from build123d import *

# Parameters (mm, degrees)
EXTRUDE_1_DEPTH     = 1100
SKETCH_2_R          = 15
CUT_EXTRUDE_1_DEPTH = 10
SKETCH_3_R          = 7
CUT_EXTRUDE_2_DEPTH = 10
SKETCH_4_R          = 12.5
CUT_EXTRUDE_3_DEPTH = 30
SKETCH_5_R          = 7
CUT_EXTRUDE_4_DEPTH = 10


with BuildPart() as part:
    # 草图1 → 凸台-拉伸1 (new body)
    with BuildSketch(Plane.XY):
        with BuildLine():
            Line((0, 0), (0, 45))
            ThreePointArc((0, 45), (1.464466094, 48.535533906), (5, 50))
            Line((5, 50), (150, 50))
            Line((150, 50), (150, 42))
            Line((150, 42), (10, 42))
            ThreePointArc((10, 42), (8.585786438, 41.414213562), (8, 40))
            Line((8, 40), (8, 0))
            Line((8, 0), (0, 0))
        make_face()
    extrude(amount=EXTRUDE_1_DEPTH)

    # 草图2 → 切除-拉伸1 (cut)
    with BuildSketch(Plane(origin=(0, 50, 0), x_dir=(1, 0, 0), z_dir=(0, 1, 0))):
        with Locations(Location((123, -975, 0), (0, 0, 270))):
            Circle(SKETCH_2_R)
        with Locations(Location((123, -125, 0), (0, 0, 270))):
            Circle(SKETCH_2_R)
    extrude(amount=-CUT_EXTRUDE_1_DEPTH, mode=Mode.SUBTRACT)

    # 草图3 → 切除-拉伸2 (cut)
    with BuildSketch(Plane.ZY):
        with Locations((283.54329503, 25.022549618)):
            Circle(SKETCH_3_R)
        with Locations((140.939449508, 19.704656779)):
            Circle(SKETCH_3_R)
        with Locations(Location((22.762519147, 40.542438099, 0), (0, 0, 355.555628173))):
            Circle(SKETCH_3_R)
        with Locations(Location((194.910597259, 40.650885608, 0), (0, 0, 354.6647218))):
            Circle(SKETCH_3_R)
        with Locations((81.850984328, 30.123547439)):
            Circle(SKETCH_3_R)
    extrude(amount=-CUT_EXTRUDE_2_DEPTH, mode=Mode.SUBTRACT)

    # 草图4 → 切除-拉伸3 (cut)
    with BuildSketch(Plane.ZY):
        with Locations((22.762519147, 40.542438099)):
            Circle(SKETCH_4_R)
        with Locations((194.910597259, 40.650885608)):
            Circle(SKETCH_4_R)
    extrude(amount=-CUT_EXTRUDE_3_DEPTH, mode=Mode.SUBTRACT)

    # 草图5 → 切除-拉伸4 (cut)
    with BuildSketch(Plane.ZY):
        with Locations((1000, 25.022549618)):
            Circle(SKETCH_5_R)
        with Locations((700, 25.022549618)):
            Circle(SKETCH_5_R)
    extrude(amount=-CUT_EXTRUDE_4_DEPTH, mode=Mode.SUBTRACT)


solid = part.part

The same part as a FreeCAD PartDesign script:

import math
import FreeCAD as App
import Part
import Sketcher
Q = App.Units.Quantity

doc = App.newDocument("Part")
body = doc.addObject("PartDesign::Body", "Body")

# Sketch on XY plane
sketch1 = body.newObject("Sketcher::SketchObject", "Sketch")
sketch1.AttachmentSupport = (doc.getObject("XY_Plane"), [""])
sketch1.MapMode = "FlatFace"
sketch1.addGeometry([
    Part.LineSegment(App.Vector(0, 45, 0), App.Vector(0, 0, 0)),  # 0
    Part.LineSegment(App.Vector(0, 0, 0), App.Vector(8, 0, 0)),  # 1
    Part.LineSegment(App.Vector(8, 0, 0), App.Vector(8, 40, 0)),  # 2
    Part.ArcOfCircle(Part.Circle(App.Vector(10, 40, 0), App.Vector(0, 0, 1), 2), math.radians(90), math.radians(180)),  # 3
    Part.LineSegment(App.Vector(10, 42, 0), App.Vector(150, 42, 0)),  # 4
    Part.LineSegment(App.Vector(150, 42, 0), App.Vector(150, 50, 0)),  # 5
    Part.LineSegment(App.Vector(150, 50, 0), App.Vector(5, 50, 0)),  # 6
    Part.ArcOfCircle(Part.Circle(App.Vector(5, 45, 0), App.Vector(0, 0, 1), 5), math.radians(90), math.radians(180)),  # 7
], False)
sketch1.addConstraint([
    Sketcher.Constraint("Coincident", 0, 2, 1, 1),
    Sketcher.Constraint("Coincident", 1, 2, 2, 1),
    Sketcher.Constraint("Tangent", 2, 2, 3, 2),
    Sketcher.Constraint("Tangent", 3, 1, 4, 1),
    Sketcher.Constraint("Coincident", 4, 2, 5, 1),
    Sketcher.Constraint("Coincident", 5, 2, 6, 1),
    Sketcher.Constraint("Tangent", 6, 2, 7, 1),
    Sketcher.Constraint("Tangent", 7, 2, 0, 1),
    Sketcher.Constraint("Vertical", 0),
    Sketcher.Constraint("Horizontal", 1),
    Sketcher.Constraint("Vertical", 2),
    Sketcher.Constraint("Horizontal", 4),
    Sketcher.Constraint("Vertical", 5),
    Sketcher.Constraint("Horizontal", 6),
    Sketcher.Constraint("Coincident", 0, 2, -1, 1),
    Sketcher.Constraint("Equal", 1, 5),
    Sketcher.Constraint("Radius", 3, Q("2 mm")),
    Sketcher.Constraint("Radius", 7, Q("5 mm")),
    Sketcher.Constraint("DistanceX", 1, 1, 1, 2, Q("8 mm")),
    Sketcher.Constraint("DistanceX", 4, 1, 4, 2, Q("140 mm")),
    Sketcher.Constraint("DistanceY", 0, 2, 0, 1, Q("45 mm")),
])
pad1 = body.newObject("PartDesign::Pad", "Pad")
pad1.Profile = sketch1
pad1.Length = 1100

# Sketch on XZ plane
sketch2 = body.newObject("Sketcher::SketchObject", "Sketch001")
sketch2.AttachmentSupport = (doc.getObject("XZ_Plane"), [""])
sketch2.MapMode = "FlatFace"
sketch2.AttachmentOffset = App.Placement(App.Vector(0, 0, -50), App.Rotation())
sketch2.addGeometry([
    Part.Circle(App.Vector(123, 975, 0), App.Vector(0, 0, 1), 15),
    Part.Circle(App.Vector(123, 125, 0), App.Vector(0, 0, 1), 15),
], False)
sketch2.addConstraint([
    Sketcher.Constraint("Equal", 0, 1),
    Sketcher.Constraint("Vertical", 0, 3, 1, 3),
    Sketcher.Constraint("Diameter", 0, Q("30 mm")),
    Sketcher.Constraint("DistanceX", -1, 1, 0, 3, Q("123 mm")),
    Sketcher.Constraint("DistanceY", -1, 1, 0, 3, Q("975 mm")),
    Sketcher.Constraint("DistanceY", -1, 1, 1, 3, Q("125 mm")),
])
pocket1 = body.newObject("PartDesign::Pocket", "Pocket")
pocket1.Profile = sketch2
pocket1.Length = 10
pocket1.Reversed = True

# Sketch on YZ plane
sketch3 = body.newObject("Sketcher::SketchObject", "Sketch002")
sketch3.AttachmentSupport = (doc.getObject("YZ_Plane"), [""])
sketch3.MapMode = "FlatFace"
sketch3.addGeometry([
    Part.Circle(App.Vector(25, 284, 0), App.Vector(0, 0, 1), 7),  # 0
    Part.Circle(App.Vector(20, 141, 0), App.Vector(0, 0, 1), 7),  # 1
    Part.Circle(App.Vector(41, 23, 0), App.Vector(0, 0, 1), 7),  # 2
    Part.Circle(App.Vector(41, 195, 0), App.Vector(0, 0, 1), 7),  # 3
    Part.Circle(App.Vector(30, 82, 0), App.Vector(0, 0, 1), 7),  # 4
], False)
sketch3.addConstraint([
    Sketcher.Constraint("Equal", 0, 1),
    Sketcher.Constraint("Equal", 1, 2),
    Sketcher.Constraint("Equal", 2, 3),
    Sketcher.Constraint("Equal", 3, 4),
    Sketcher.Constraint("Diameter", 0, Q("14 mm")),
    Sketcher.Constraint("DistanceX", -1, 1, 0, 3, Q("25.02255 mm")),
    Sketcher.Constraint("DistanceY", -1, 1, 1, 3, Q("140.93945 mm")),
    Sketcher.Constraint("DistanceX", -1, 1, 2, 3, Q("40.542438 mm")),
    Sketcher.Constraint("DistanceY", -1, 1, 2, 3, Q("22.762519 mm")),
    Sketcher.Constraint("DistanceX", 1, 3, 2, 3, Q("20.837781 mm")),
    Sketcher.Constraint("DistanceX", 1, 3, 3, 3, Q("20.946229 mm")),
    Sketcher.Constraint("DistanceY", 2, 3, 3, 3, Q("172.148078 mm")),
    Sketcher.Constraint("DistanceX", 1, 3, 4, 3, Q("10.418891 mm")),
    Sketcher.Constraint("DistanceY", 4, 3, 0, 3, Q("201.692311 mm")),
    Sketcher.Constraint("DistanceY", -1, 1, 0, 3, Q("283.543295 mm")),
])
pocket2 = body.newObject("PartDesign::Pocket", "Pocket001")
pocket2.Profile = sketch3
pocket2.Length = 10
pocket2.Reversed = True

# Sketch on YZ plane
sketch4 = body.newObject("Sketcher::SketchObject", "Sketch003")
sketch4.AttachmentSupport = (doc.getObject("YZ_Plane"), [""])
sketch4.MapMode = "FlatFace"
sketch4.addGeometry([
    Part.Circle(App.Vector(41, 23, 0), App.Vector(0, 0, 1), 12),
    Part.Circle(App.Vector(41, 195, 0), App.Vector(0, 0, 1), 12),
], False)
sketch4.addConstraint([
    Sketcher.Constraint("Equal", 0, 1),
    Sketcher.Constraint("Diameter", 0, Q("25 mm")),
    Sketcher.Constraint("DistanceX", -1, 1, 0, 3, Q("40.542438 mm")),
    Sketcher.Constraint("DistanceY", -1, 1, 0, 3, Q("22.762519 mm")),
    Sketcher.Constraint("DistanceY", 0, 3, 1, 3, Q("172.148078 mm")),
    Sketcher.Constraint("DistanceX", -1, 1, 1, 3, Q("40.650886 mm")),
])
pocket3 = body.newObject("PartDesign::Pocket", "Pocket002")
pocket3.Profile = sketch4
pocket3.Length = 30
pocket3.Reversed = True

# Sketch on YZ plane
sketch5 = body.newObject("Sketcher::SketchObject", "Sketch004")
sketch5.AttachmentSupport = (doc.getObject("YZ_Plane"), [""])
sketch5.MapMode = "FlatFace"
sketch5.addGeometry([
    Part.Circle(App.Vector(25, 1000, 0), App.Vector(0, 0, 1), 7),
    Part.Circle(App.Vector(25, 700, 0), App.Vector(0, 0, 1), 7),
], False)
sketch5.addConstraint([
    Sketcher.Constraint("Equal", 0, 1),
    Sketcher.Constraint("Vertical", 0, 3, 1, 3),
    Sketcher.Constraint("Diameter", 0, Q("14 mm")),
    Sketcher.Constraint("DistanceY", -1, 1, 0, 3, Q("1000 mm")),
    Sketcher.Constraint("DistanceY", -1, 1, 1, 3, Q("700 mm")),
    Sketcher.Constraint("DistanceX", -1, 1, 0, 3, Q("25.02255 mm")),
])
pocket4 = body.newObject("PartDesign::Pocket", "Pocket003")
pocket4.Profile = sketch5
pocket4.Length = 10
pocket4.Reversed = True

doc.recompute()
